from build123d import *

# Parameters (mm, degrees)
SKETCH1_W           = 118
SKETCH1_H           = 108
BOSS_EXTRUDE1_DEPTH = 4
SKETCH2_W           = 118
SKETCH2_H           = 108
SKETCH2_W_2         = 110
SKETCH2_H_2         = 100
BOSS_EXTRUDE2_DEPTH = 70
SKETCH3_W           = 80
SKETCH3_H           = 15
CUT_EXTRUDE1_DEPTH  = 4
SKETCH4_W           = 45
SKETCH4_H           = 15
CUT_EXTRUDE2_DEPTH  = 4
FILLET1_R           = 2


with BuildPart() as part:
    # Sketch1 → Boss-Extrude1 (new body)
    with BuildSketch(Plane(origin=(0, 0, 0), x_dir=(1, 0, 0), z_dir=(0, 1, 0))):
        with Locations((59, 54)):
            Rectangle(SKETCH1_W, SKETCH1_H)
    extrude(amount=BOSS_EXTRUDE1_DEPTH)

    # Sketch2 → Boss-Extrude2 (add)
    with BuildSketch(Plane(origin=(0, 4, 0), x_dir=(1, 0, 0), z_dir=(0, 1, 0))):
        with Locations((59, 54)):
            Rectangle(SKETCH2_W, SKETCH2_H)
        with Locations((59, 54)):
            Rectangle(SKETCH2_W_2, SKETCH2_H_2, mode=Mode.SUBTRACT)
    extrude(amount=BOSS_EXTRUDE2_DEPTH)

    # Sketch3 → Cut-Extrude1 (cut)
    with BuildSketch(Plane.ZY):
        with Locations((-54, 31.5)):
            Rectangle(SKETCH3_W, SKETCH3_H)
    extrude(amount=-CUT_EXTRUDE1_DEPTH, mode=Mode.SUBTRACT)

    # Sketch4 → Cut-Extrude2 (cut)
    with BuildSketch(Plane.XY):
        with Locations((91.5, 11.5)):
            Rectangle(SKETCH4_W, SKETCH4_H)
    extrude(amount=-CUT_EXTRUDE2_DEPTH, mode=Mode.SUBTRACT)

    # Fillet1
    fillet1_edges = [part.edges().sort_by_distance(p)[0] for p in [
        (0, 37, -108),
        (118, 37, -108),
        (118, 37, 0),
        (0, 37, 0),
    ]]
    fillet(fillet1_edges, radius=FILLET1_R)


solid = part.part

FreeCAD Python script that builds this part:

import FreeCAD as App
import Part
import Sketcher

V = App.Vector
Q = App.Units.Quantity


def edges_at(feature, points):
    """Names of the edges that pass closest to the given points."""
    edges = feature.Shape.Edges
    near = lambda p: min(range(len(edges)), key=lambda i: edges[i].distToShape(Part.Vertex(*p))[0])
    return sorted({f"Edge{near(p) + 1}" for p in points})

doc = App.newDocument("Part")
body = doc.addObject("PartDesign::Body", "Body")

sketch1 = body.newObject("Sketcher::SketchObject", "Sketch")
sketch1.AttachmentSupport = (doc.getObject("XZ_Plane"), [""])
sketch1.MapMode = "FlatFace"
sketch1.addGeometry(Part.LineSegment(V(0, -108, 0), V(0, 0, 0)), False)
sketch1.addGeometry(Part.LineSegment(V(0, 0, 0), V(118, 0, 0)), False)
sketch1.addGeometry(Part.LineSegment(V(118, 0, 0), V(118, -108, 0)), False)
sketch1.addGeometry(Part.LineSegment(V(118, -108, 0), V(0, -108, 0)), False)
sketch1.addConstraint(Sketcher.Constraint("Coincident", 0, 2, 1, 1))
sketch1.addConstraint(Sketcher.Constraint("Coincident", 1, 2, 2, 1))
sketch1.addConstraint(Sketcher.Constraint("Coincident", 2, 2, 3, 1))
sketch1.addConstraint(Sketcher.Constraint("Coincident", 3, 2, 0, 1))
sketch1.addConstraint(Sketcher.Constraint("Vertical", 0))
sketch1.addConstraint(Sketcher.Constraint("Horizontal", 1))
sketch1.addConstraint(Sketcher.Constraint("Vertical", 2))
sketch1.addConstraint(Sketcher.Constraint("Horizontal", 3))
sketch1.addConstraint(Sketcher.Constraint("Coincident", 0, 2, -1, 1))
sketch1.addConstraint(Sketcher.Constraint("DistanceX", 1, 1, 1, 2, Q("118 mm")))
sketch1.addConstraint(Sketcher.Constraint("DistanceY", 0, 1, 0, 2, Q("108 mm")))
pad1 = body.newObject("PartDesign::Pad", "Pad")
pad1.Profile = sketch1
pad1.Length = 4
pad1.Reversed = True

sketch2 = body.newObject("Sketcher::SketchObject", "Sketch001")
sketch2.AttachmentSupport = (doc.getObject("XZ_Plane"), [""])
sketch2.MapMode = "FlatFace"
sketch2.AttachmentOffset = App.Placement(V(0, 0, -4), App.Rotation())
sketch2.addGeometry(Part.LineSegment(V(0, -108, 0), V(0, 0, 0)), False)
sketch2.addGeometry(Part.LineSegment(V(0, 0, 0), V(118, 0, 0)), False)
sketch2.addGeometry(Part.LineSegment(V(118, 0, 0), V(118, -108, 0)), False)
sketch2.addGeometry(Part.LineSegment(V(118, -108, 0), V(0, -108, 0)), False)
sketch2.addGeometry(Part.LineSegment(V(114, -4, 0), V(4, -4, 0)), False)
sketch2.addGeometry(Part.LineSegment(V(4, -4, 0), V(4, -104, 0)), False)
sketch2.addGeometry(Part.LineSegment(V(4, -104, 0), V(114, -104, 0)), False)
sketch2.addGeometry(Part.LineSegment(V(114, -104, 0), V(114, -4, 0)), False)
sketch2.addConstraint(Sketcher.Constraint("Coincident", 0, 2, 1, 1))
sketch2.addConstraint(Sketcher.Constraint("Coincident", 1, 2, 2, 1))
sketch2.addConstraint(Sketcher.Constraint("Coincident", 2, 2, 3, 1))
sketch2.addConstraint(Sketcher.Constraint("Coincident", 3, 2, 0, 1))
sketch2.addConstraint(Sketcher.Constraint("Coincident", 4, 2, 5, 1))
sketch2.addConstraint(Sketcher.Constraint("Coincident", 5, 2, 6, 1))
sketch2.addConstraint(Sketcher.Constraint("Coincident", 6, 2, 7, 1))
sketch2.addConstraint(Sketcher.Constraint("Coincident", 7, 2, 4, 1))
sketch2.addConstraint(Sketcher.Constraint("Vertical", 0))
sketch2.addConstraint(Sketcher.Constraint("Horizontal", 1))
sketch2.addConstraint(Sketcher.Constraint("Vertical", 2))
sketch2.addConstraint(Sketcher.Constraint("Horizontal", 3))
sketch2.addConstraint(Sketcher.Constraint("Horizontal", 4))
sketch2.addConstraint(Sketcher.Constraint("Vertical", 5))
sketch2.addConstraint(Sketcher.Constraint("Horizontal", 6))
sketch2.addConstraint(Sketcher.Constraint("Vertical", 7))
sketch2.addConstraint(Sketcher.Constraint("Coincident", 0, 2, -1, 1))
sketch2.addConstraint(Sketcher.Constraint("DistanceX", 1, 1, 1, 2, Q("118 mm")))
sketch2.addConstraint(Sketcher.Constraint("DistanceX", 4, 2, 4, 1, Q("110 mm")))
sketch2.addConstraint(Sketcher.Constraint("DistanceY", 0, 1, 0, 2, Q("108 mm")))
sketch2.addConstraint(Sketcher.Constraint("DistanceY", 5, 2, 5, 1, Q("100 mm")))
sketch2.addConstraint(Sketcher.Constraint("DistanceX", -1, 1, 4, 2, Q("4 mm")))
sketch2.addConstraint(Sketcher.Constraint("DistanceY", 4, 2, -1, 1, Q("4 mm")))
pad2 = body.newObject("PartDesign::Pad", "Pad001")
pad2.Profile = sketch2
pad2.Length = 70
pad2.Reversed = True

sketch3 = body.newObject("Sketcher::SketchObject", "Sketch002")
sketch3.AttachmentSupport = (doc.getObject("YZ_Plane"), [""])
sketch3.MapMode = "FlatFace"
sketch3.addGeometry(Part.LineSegment(V(39, -94, 0), V(24, -94, 0)), False)
sketch3.addGeometry(Part.LineSegment(V(24, -94, 0), V(24, -14, 0)), False)
sketch3.addGeometry(Part.LineSegment(V(24, -14, 0), V(39, -14, 0)), False)
sketch3.addGeometry(Part.LineSegment(V(39, -14, 0), V(39, -94, 0)), False)
sketch3.addConstraint(Sketcher.Constraint("Coincident", 0, 2, 1, 1))
sketch3.addConstraint(Sketcher.Constraint("Coincident", 1, 2, 2, 1))
sketch3.addConstraint(Sketcher.Constraint("Coincident", 2, 2, 3, 1))
sketch3.addConstraint(Sketcher.Constraint("Coincident", 3, 2, 0, 1))
sketch3.addConstraint(Sketcher.Constraint("Horizontal", 0))
sketch3.addConstraint(Sketcher.Constraint("Vertical", 1))
sketch3.addConstraint(Sketcher.Constraint("Horizontal", 2))
sketch3.addConstraint(Sketcher.Constraint("Vertical", 3))
sketch3.addConstraint(Sketcher.Constraint("DistanceX", 0, 2, 0, 1, Q("15 mm")))
sketch3.addConstraint(Sketcher.Constraint("DistanceY", 1, 1, 1, 2, Q("80 mm")))
sketch3.addConstraint(Sketcher.Constraint("DistanceX", -1, 1, 0, 2, Q("24 mm")))
sketch3.addConstraint(Sketcher.Constraint("DistanceY", 0, 2, -1, 1, Q("94 mm")))
pocket1 = body.newObject("PartDesign::Pocket", "Pocket")
pocket1.Profile = sketch3
pocket1.Length = 4
pocket1.Reversed = True

sketch4 = body.newObject("Sketcher::SketchObject", "Sketch003")
sketch4.AttachmentSupport = (doc.getObject("XY_Plane"), [""])
sketch4.MapMode = "FlatFace"
sketch4.addGeometry(Part.LineSegment(V(69, 19, 0), V(69, 4, 0)), False)
sketch4.addGeometry(Part.LineSegment(V(69, 4, 0), V(114, 4, 0)), False)
sketch4.addGeometry(Part.LineSegment(V(114, 4, 0), V(114, 19, 0)), False)
sketch4.addGeometry(Part.LineSegment(V(114, 19, 0), V(69, 19, 0)), False)
sketch4.addConstraint(Sketcher.Constraint("Coincident", 0, 2, 1, 1))
sketch4.addConstraint(Sketcher.Constraint("Coincident", 1, 2, 2, 1))
sketch4.addConstraint(Sketcher.Constraint("Coincident", 2, 2, 3, 1))
sketch4.addConstraint(Sketcher.Constraint("Coincident", 3, 2, 0, 1))
sketch4.addConstraint(Sketcher.Constraint("Vertical", 0))
sketch4.addConstraint(Sketcher.Constraint("Horizontal", 1))
sketch4.addConstraint(Sketcher.Constraint("Vertical", 2))
sketch4.addConstraint(Sketcher.Constraint("Horizontal", 3))
sketch4.addConstraint(Sketcher.Constraint("DistanceX", 1, 1, 1, 2, Q("45 mm")))
sketch4.addConstraint(Sketcher.Constraint("DistanceY", 0, 2, 0, 1, Q("15 mm")))
sketch4.addConstraint(Sketcher.Constraint("DistanceX", -1, 1, 0, 2, Q("69 mm")))
sketch4.addConstraint(Sketcher.Constraint("DistanceY", -1, 1, 0, 2, Q("4 mm")))
pocket2 = body.newObject("PartDesign::Pocket", "Pocket001")
pocket2.Profile = sketch4
pocket2.Length = 4
doc.recompute()

fillet = body.newObject("PartDesign::Fillet", "Fillet")
fillet.Base = (pocket2, edges_at(pocket2, [
    (0, 37, -108),
    (118, 37, -108),
    (118, 37, 0),
    (0, 37, 0),
]))
fillet.Radius = 2

doc.recompute()
